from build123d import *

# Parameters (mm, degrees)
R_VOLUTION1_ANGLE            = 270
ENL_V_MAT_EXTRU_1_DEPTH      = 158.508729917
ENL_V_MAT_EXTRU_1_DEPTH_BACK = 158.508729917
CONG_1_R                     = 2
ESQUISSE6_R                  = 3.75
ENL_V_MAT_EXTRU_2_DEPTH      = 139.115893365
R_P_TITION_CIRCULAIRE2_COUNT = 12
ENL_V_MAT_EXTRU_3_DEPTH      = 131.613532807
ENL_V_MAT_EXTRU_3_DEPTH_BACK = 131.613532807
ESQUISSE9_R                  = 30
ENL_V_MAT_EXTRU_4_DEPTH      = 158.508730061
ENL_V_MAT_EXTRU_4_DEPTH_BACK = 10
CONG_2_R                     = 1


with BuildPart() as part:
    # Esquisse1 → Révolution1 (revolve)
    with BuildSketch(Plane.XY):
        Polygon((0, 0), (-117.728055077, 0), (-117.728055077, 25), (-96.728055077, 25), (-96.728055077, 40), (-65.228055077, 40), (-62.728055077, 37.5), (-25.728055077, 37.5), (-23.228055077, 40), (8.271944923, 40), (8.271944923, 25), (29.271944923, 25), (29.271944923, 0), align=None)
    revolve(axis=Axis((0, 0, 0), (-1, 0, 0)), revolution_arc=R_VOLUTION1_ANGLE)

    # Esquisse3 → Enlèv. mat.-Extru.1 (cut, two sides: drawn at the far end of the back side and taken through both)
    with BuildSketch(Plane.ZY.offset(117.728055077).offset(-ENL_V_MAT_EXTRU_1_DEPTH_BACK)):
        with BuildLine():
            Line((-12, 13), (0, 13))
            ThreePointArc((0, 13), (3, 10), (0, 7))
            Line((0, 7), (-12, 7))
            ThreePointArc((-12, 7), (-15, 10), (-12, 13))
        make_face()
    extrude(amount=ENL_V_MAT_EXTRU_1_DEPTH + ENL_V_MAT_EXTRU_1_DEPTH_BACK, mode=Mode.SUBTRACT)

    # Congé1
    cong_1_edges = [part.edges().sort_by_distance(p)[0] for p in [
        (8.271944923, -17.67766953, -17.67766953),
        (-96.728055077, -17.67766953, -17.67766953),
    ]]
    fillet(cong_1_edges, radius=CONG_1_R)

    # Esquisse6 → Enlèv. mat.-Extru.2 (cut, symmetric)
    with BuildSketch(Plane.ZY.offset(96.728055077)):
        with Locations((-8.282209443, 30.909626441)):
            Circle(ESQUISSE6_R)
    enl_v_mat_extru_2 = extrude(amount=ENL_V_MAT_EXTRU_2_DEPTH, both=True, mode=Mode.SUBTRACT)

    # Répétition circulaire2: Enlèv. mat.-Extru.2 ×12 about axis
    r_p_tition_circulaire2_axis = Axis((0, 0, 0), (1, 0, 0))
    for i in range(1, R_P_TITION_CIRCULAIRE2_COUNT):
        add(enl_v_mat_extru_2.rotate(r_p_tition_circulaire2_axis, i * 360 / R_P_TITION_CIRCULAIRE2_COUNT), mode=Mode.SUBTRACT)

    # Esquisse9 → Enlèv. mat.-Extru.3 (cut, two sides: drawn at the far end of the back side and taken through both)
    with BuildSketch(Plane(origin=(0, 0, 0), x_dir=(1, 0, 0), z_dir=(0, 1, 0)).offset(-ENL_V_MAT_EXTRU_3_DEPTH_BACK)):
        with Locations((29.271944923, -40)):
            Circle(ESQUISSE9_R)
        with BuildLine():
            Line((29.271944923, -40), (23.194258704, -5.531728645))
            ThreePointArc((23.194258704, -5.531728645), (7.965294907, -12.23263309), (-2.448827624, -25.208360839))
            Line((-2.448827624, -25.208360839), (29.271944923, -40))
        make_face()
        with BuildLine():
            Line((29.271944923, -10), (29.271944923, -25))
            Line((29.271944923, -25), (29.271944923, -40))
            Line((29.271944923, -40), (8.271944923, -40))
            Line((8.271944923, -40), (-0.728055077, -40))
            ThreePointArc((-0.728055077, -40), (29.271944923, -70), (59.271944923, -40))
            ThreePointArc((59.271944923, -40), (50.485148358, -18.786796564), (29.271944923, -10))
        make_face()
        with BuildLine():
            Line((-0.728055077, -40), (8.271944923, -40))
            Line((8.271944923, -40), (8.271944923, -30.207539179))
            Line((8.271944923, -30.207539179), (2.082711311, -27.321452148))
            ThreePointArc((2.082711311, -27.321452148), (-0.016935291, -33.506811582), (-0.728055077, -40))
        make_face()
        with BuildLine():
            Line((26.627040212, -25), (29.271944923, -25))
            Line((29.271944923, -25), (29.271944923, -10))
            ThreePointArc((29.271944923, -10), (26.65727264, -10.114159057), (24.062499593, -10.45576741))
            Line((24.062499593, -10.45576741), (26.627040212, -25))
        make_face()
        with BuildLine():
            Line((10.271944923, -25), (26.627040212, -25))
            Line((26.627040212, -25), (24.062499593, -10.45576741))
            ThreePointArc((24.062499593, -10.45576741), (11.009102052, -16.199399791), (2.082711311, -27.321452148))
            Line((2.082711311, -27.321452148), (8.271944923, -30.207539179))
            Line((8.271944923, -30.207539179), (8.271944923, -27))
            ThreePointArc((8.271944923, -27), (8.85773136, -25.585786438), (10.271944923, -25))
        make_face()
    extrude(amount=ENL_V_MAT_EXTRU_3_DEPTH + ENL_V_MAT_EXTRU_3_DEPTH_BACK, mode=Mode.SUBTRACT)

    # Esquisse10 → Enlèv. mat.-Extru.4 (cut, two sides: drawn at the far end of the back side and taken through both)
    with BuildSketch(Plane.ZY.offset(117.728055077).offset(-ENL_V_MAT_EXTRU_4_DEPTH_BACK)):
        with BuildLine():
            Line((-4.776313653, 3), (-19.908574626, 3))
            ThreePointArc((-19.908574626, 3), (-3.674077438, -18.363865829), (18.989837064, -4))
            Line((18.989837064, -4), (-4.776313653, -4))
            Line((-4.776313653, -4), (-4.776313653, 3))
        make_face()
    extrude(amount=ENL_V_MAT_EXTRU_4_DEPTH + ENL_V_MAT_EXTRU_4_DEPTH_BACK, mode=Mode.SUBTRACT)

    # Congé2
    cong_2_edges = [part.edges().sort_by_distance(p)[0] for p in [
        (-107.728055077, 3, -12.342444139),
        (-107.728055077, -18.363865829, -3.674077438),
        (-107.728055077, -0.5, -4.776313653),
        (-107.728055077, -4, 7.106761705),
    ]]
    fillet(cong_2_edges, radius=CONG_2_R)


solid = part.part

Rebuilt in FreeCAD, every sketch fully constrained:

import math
import FreeCAD as App
import Part
import Sketcher

V = App.Vector
Q = App.Units.Quantity


def edges_at(feature, points):
    """Names of the edges that pass closest to the given points."""
    edges = feature.Shape.Edges
    near = lambda p: min(range(len(edges)), key=lambda i: edges[i].distToShape(Part.Vertex(*p))[0])
    return sorted({f"Edge{near(p) + 1}" for p in points})

doc = App.newDocument("Part")
params = doc.addObject("Spreadsheet::Sheet", "Params")
for row, (alias, value) in enumerate([
    ("sketch1_width", "147 mm"),
    ("sketch1_width2", "21 mm"),
    ("sketch1_width3", "37 mm"),
    ("sketch1_height", "25 mm"),
    ("sketch1_height2", "15 mm"),
    ("revolution_angle", "270 deg"),
    ("sketch2_radius", "3 mm"),
    ("sketch2_height", "12 mm"),
    ("fillet_radius", "2 mm"),
    ("sketch3_diameter", "7.5 mm"),
    ("pocket2_length", "278.231787 mm"),
    ("sketch4_radius", "30 mm"),
    ("sketch4_radius2", "35 mm"),
    ("sketch5_width", "7 mm"),
    ("pocket4_length", "158.50873 mm"),
    ("pocket4_length2", "10 mm"),
    ("fillet2_radius", "1 mm"),
], start=1):
    params.set(f"A{row}", alias)
    params.set(f"B{row}", "=" + value)
    params.setAlias(f"B{row}", alias)

body = doc.addObject("PartDesign::Body", "Body")

# Sketch on XY plane
sketch1 = body.newObject("Sketcher::SketchObject", "Sketch")
sketch1.AttachmentSupport = (doc.getObject("XY_Plane"), [""])
sketch1.MapMode = "FlatFace"
sketch1.addGeometry([
    Part.LineSegment(V(-117.728055, 0, 0), V(29.271945, 0, 0)),  # 0
    Part.LineSegment(V(29.271945, 0, 0), V(29.271945, 25, 0)),  # 1
    Part.LineSegment(V(29.271945, 25, 0), V(8.271945, 25, 0)),  # 2
    Part.LineSegment(V(8.271945, 25, 0), V(8.271945, 40, 0)),  # 3
    Part.LineSegment(V(8.271945, 40, 0), V(-23.228055, 40, 0)),  # 4
    Part.LineSegment(V(-23.228055, 40, 0), V(-25.728055, 37.5, 0)),  # 5
    Part.LineSegment(V(-25.728055, 37.5, 0), V(-62.728055, 37.5, 0)),  # 6
    Part.LineSegment(V(-62.728055, 37.5, 0), V(-65.228055, 40, 0)),  # 7
    Part.LineSegment(V(-65.228055, 40, 0), V(-96.728055, 40, 0)),  # 8
    Part.LineSegment(V(-96.728055, 40, 0), V(-96.728055, 25, 0)),  # 9
    Part.LineSegment(V(-96.728055, 25, 0), V(-117.728055, 25, 0)),  # 10
    Part.LineSegment(V(-117.728055, 25, 0), V(-117.728055, 0, 0)),  # 11
], False)
sketch1.addConstraint([
    Sketcher.Constraint("Coincident", 0, 2, 1, 1),
    Sketcher.Constraint("Coincident", 1, 2, 2, 1),
    Sketcher.Constraint("Coincident", 2, 2, 3, 1),
    Sketcher.Constraint("Coincident", 3, 2, 4, 1),
    Sketcher.Constraint("Coincident", 4, 2, 5, 1),
    Sketcher.Constraint("Coincident", 5, 2, 6, 1),
    Sketcher.Constraint("Coincident", 6, 2, 7, 1),
    Sketcher.Constraint("Coincident", 7, 2, 8, 1),
    Sketcher.Constraint("Coincident", 8, 2, 9, 1),
    Sketcher.Constraint("Coincident", 9, 2, 10, 1),
    Sketcher.Constraint("Coincident", 10, 2, 11, 1),
    Sketcher.Constraint("Coincident", 11, 2, 0, 1),
    Sketcher.Constraint("Horizontal", 0),
    Sketcher.Constraint("Vertical", 1),
    Sketcher.Constraint("Horizontal", 2),
    Sketcher.Constraint("Vertical", 3),
    Sketcher.Constraint("Horizontal", 4),
    Sketcher.Constraint("Horizontal", 6),
    Sketcher.Constraint("Horizontal", 8),
    Sketcher.Constraint("Vertical", 9),
    Sketcher.Constraint("Horizontal", 10),
    Sketcher.Constraint("Vertical", 11),
    Sketcher.Constraint("PointOnObject", 0, 2, -1),
    Sketcher.Constraint("Perpendicular", 5, 7),
    Sketcher.Constraint("Horizontal", 4, 2, 7, 2),
    Sketcher.Constraint("Horizontal", 2, 2, 9, 2),
    Sketcher.Constraint("Equal", 4, 8),
    Sketcher.Constraint("Equal", 2, 10),
    Sketcher.Constraint("Equal", 5, 7),
    Sketcher.Constraint("DistanceX", 0, 1, 0, 2, 147.0),
    Sketcher.Constraint("DistanceX", 2, 2, 2, 1, 21.0),
    Sketcher.Constraint("DistanceX", 6, 2, 6, 1, 37.0),
    Sketcher.Constraint("DistanceY", 1, 1, 1, 2, 25.0),
    Sketcher.Constraint("DistanceY", 3, 1, 3, 2, 15.0),
    Sketcher.Constraint("DistanceX", 4, 2, 4, 1, 31.5),
    Sketcher.Constraint("DistanceX", -1, 1, 0, 2, 29.271945),
])
sketch1.setExpression("Constraints[29]", "Params.sketch1_width")
sketch1.setExpression("Constraints[30]", "Params.sketch1_width2")
sketch1.setExpression("Constraints[31]", "Params.sketch1_width3")
sketch1.setExpression("Constraints[32]", "Params.sketch1_height")
sketch1.setExpression("Constraints[33]", "Params.sketch1_height2")
revolution = body.newObject("PartDesign::Revolution", "Revolution")
revolution.Profile = sketch1
revolution.ReferenceAxis = (sketch1, ["H_Axis"])
revolution.setExpression("Angle", "Params.revolution_angle")
revolution.Reversed = True

# Sketch on YZ plane
sketch2 = body.newObject("Sketcher::SketchObject", "Sketch001")
sketch2.AttachmentSupport = (doc.getObject("YZ_Plane"), [""])
sketch2.MapMode = "FlatFace"
sketch2.AttachmentOffset = App.Placement(V(0, 0, -117.728055), App.Rotation())
sketch2.addGeometry([
    Part.LineSegment(V(13, 0, 0), V(13, -12, 0)),
    Part.ArcOfCircle(Part.Circle(V(10, -12, 0), V(0, 0, 1), 3), math.radians(180), math.radians(360)),
    Part.LineSegment(V(7, -12, 0), V(7, 0, 0)),
    Part.ArcOfCircle(Part.Circle(V(10, 0, 0), V(0, 0, 1), 3), math.radians(0), math.radians(180)),
], False)
sketch2.addConstraint([
    Sketcher.Constraint("Tangent", 0, 2, 1, 2),
    Sketcher.Constraint("Tangent", 1, 1, 2, 1),
    Sketcher.Constraint("Tangent", 2, 2, 3, 2),
    Sketcher.Constraint("Tangent", 3, 1, 0, 1),
    Sketcher.Constraint("Vertical", 0),
    Sketcher.Constraint("Vertical", 2),
    Sketcher.Constraint("PointOnObject", 3, 3, -1),
    Sketcher.Constraint("Radius", 1, 3.0),
    Sketcher.Constraint("DistanceY", 0, 2, 0, 1, 12.0),
    Sketcher.Constraint("DistanceX", -1, 1, 1, 3, 10.0),
])
sketch2.setExpression("Constraints[7]", "Params.sketch2_radius")
sketch2.setExpression("Constraints[8]", "Params.sketch2_height")
pocket1 = body.newObject("PartDesign::Pocket", "Pocket")
pocket1.Profile = sketch2
pocket1.Type = "ThroughAll"
pocket1.Midplane = True
doc.recompute()

fillet = body.newObject("PartDesign::Fillet", "Fillet")
fillet.Base = (pocket1, edges_at(pocket1, [(8.272, -17.678, -17.678), (-96.728, -17.678, -17.678)]))
fillet.setExpression("Radius", "Params.fillet_radius")

# Sketch on YZ plane
sketch3 = body.newObject("Sketcher::SketchObject", "Sketch002")
sketch3.AttachmentSupport = (doc.getObject("YZ_Plane"), [""])
sketch3.MapMode = "FlatFace"
sketch3.AttachmentOffset = App.Placement(V(0, 0, -96.728055), App.Rotation())
sketch3.addGeometry(Part.Circle(V(30.909626, -8.282209, 0), V(0, 0, 1), 3.75), False)
sketch3.addConstraint([
    Sketcher.Constraint("Diameter", 0, 7.5),
    Sketcher.Constraint("DistanceY", 0, 3, -1, 1, 8.282209),
    Sketcher.Constraint("DistanceX", -1, 1, 0, 3, 30.909626),
])
sketch3.setExpression("Constraints[0]", "Params.sketch3_diameter")
pocket2 = body.newObject("PartDesign::Pocket", "Pocket001")
pocket2.Profile = sketch3
pocket2.setExpression("Length", "Params.pocket2_length")
pocket2.Midplane = True
doc.recompute()

polarpattern = body.newObject("PartDesign::PolarPattern", "PolarPattern")
polarpattern.Originals = [pocket2]
polarpattern.Axis = (doc.getObject("X_Axis"), [""])
polarpattern.Angle = 360
polarpattern.Occurrences = 12
body.Tip = polarpattern

# Sketch on XZ plane
sketch4 = body.newObject("Sketcher::SketchObject", "Sketch003")
sketch4.AttachmentSupport = (doc.getObject("XZ_Plane"), [""])
sketch4.MapMode = "FlatFace"
sketch4.addGeometry([
    Part.LineSegment(V(-2.448828, 25.208361, 0), V(2.082711, 27.321452, 0)),  # 0
    Part.ArcOfCircle(Part.Circle(V(29.271945, 40, 0), V(0, 0, 1), 30), math.radians(0), math.radians(205)),  # 1
    Part.ArcOfCircle(Part.Circle(V(29.271945, 40, 0), V(0, 0, 1), 30), math.radians(-90), math.radians(0)),  # 2
    Part.ArcOfCircle(Part.Circle(V(29.271945, 40, 0), V(0, 0, 1), 30), math.radians(-100), math.radians(-90)),  # 3
    Part.LineSegment(V(24.0625, 10.455767, 0), V(23.194259, 5.531729, 0)),  # 4
    Part.ArcOfCircle(Part.Circle(V(29.271945, 40, 0), V(0, 0, 1), 35), math.radians(-155), math.radians(-100)),  # 5
], False)
sketch4.addConstraint([
    Sketcher.Constraint("Coincident", 0, 2, 1, 2),
    Sketcher.Constraint("Tangent", 1, 1, 2, 2),
    Sketcher.Constraint("Tangent", 2, 1, 3, 2),
    Sketcher.Constraint("Coincident", 3, 1, 4, 1),
    Sketcher.Constraint("Coincident", 4, 2, 5, 2),
    Sketcher.Constraint("Coincident", 5, 1, 0, 1),
    Sketcher.Constraint("Coincident", 3, 3, 1, 3),
    Sketcher.Constraint("Coincident", 5, 3, 1, 3),
    Sketcher.Constraint("Horizontal", 5, 3, 1, 1),
    Sketcher.Constraint("Vertical", 5, 3, 2, 1),
    Sketcher.Constraint("Radius", 1, 30.0),
    Sketcher.Constraint("Radius", 5, 35.0),
    Sketcher.Constraint("Angle", 0, Q("25 deg")),
    Sketcher.Constraint("Angle", 4, Q("-100 deg")),
    Sketcher.Constraint("DistanceY", -1, 1, 1, 3, 40.0),
    Sketcher.Constraint("DistanceX", -1, 1, 3, 1, 24.0625),
    Sketcher.Constraint("DistanceX", -1, 1, 0, 2, 2.082711),
    Sketcher.Constraint("DistanceY", -1, 1, 4, 2, 5.531729),
])
sketch4.setExpression("Constraints[10]", "Params.sketch4_radius")
sketch4.setExpression("Constraints[11]", "Params.sketch4_radius2")
pocket3 = body.newObject("PartDesign::Pocket", "Pocket002")
pocket3.Profile = sketch4
pocket3.Type = "ThroughAll"
pocket3.Midplane = True

# Sketch on YZ plane
sketch5 = body.newObject("Sketcher::SketchObject", "Sketch004")
sketch5.AttachmentSupport = (doc.getObject("YZ_Plane"), [""])
sketch5.MapMode = "FlatFace"
sketch5.AttachmentOffset = App.Placement(V(0, 0, -117.728055), App.Rotation())
sketch5.addGeometry([
    Part.LineSegment(V(3, -4.776314, 0), V(3, -19.908575, 0)),
    Part.ArcOfCircle(Part.Circle(V(1.155686, -0.161418, 0), V(0, 0, 1), 19.833096), math.radians(105.067313), math.radians(275.335743)),
    Part.LineSegment(V(-4, 18.989837, 0), V(-4, -4.776314, 0)),
    Part.LineSegment(V(-4, -4.776314, 0), V(3, -4.776314, 0)),
], False)
sketch5.addConstraint([
    Sketcher.Constraint("Coincident", 0, 2, 1, 2),
    Sketcher.Constraint("Coincident", 1, 1, 2, 1),
    Sketcher.Constraint("Coincident", 2, 2, 3, 1),
    Sketcher.Constraint("Coincident", 3, 2, 0, 1),
    Sketcher.Constraint("Vertical", 0),
    Sketcher.Constraint("Vertical", 2),
    Sketcher.Constraint("Horizontal", 3),
    Sketcher.Constraint("DistanceX", 3, 1, 3, 2, 7.0),
    Sketcher.Constraint("DistanceX", -1, 1, 0, 2, 3.0),
    Sketcher.Constraint("Radius", 1, 19.833096),
    Sketcher.Constraint("DistanceY", 0, 2, 0, 1, 15.132261),
    Sketcher.Constraint("DistanceY", 2, 2, 2, 1, 23.766151),
    Sketcher.Constraint("DistanceY", 1, 3, -1, 1, 0.161418),
])
sketch5.setExpression("Constraints[7]", "Params.sketch5_width")
pocket4 = body.newObject("PartDesign::Pocket", "Pocket003")
pocket4.Profile = sketch5
pocket4.Type = "TwoLengths"
pocket4.setExpression("Length", "Params.pocket4_length")
pocket4.setExpression("Length2", "Params.pocket4_length2")
doc.recompute()

fillet2 = body.newObject("PartDesign::Fillet", "Fillet001")
fillet2.Base = (pocket4, edges_at(pocket4, [
    (-107.728, 3, -12.342),
    (-107.728, -18.364, -3.674),
    (-107.728, -0.5, -4.776),
    (-107.728, -4, 7.107),
]))
fillet2.setExpression("Radius", "Params.fillet2_radius")

doc.recompute()
